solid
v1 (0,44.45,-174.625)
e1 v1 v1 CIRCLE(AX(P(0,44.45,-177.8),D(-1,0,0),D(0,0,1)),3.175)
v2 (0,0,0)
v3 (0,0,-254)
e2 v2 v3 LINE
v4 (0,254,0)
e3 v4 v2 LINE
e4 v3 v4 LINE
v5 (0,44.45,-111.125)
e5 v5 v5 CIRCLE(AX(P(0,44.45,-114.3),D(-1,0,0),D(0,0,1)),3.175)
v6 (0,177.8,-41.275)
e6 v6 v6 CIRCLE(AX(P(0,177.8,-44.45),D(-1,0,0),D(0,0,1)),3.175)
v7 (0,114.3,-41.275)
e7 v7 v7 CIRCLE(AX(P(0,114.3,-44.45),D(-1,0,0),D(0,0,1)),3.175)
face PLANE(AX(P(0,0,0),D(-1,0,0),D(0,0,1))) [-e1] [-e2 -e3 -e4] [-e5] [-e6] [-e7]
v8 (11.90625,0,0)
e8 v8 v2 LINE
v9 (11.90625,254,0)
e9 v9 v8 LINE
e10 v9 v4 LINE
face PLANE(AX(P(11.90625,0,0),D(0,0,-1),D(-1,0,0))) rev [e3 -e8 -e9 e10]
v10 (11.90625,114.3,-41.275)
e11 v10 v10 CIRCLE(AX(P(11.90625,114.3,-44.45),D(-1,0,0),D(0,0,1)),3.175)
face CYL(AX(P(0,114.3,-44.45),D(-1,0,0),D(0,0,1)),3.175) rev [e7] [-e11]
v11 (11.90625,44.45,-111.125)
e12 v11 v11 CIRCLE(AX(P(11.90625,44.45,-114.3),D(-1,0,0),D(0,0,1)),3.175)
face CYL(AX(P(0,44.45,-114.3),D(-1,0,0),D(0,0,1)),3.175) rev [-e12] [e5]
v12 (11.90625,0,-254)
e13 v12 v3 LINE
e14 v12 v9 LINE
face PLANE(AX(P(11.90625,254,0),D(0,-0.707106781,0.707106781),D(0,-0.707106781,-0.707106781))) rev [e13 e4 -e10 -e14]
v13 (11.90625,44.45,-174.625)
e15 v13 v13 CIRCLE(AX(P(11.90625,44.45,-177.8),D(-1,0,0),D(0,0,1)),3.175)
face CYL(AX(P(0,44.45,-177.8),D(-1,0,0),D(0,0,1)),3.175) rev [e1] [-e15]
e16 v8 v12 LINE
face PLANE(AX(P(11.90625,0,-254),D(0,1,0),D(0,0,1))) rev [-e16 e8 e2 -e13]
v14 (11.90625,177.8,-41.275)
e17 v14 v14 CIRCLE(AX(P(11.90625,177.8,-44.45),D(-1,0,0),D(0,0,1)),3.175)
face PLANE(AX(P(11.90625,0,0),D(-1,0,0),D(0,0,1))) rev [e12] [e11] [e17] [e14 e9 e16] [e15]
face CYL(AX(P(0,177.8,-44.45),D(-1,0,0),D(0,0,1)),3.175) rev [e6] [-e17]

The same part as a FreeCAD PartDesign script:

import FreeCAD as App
import Part
import Sketcher

V = App.Vector
Q = App.Units.Quantity

doc = App.newDocument("Part")
body = doc.addObject("PartDesign::Body", "Body")

# Sketch on YZ plane
sketch1 = body.newObject("Sketcher::SketchObject", "Sketch")
sketch1.AttachmentSupport = (doc.getObject("YZ_Plane"), [""])
sketch1.MapMode = "FlatFace"
sketch1.addGeometry(Part.LineSegment(V(254, 0, 0), V(0, 0, 0)), False)
sketch1.addGeometry(Part.LineSegment(V(0, 0, 0), V(0, -254, 0)), False)
sketch1.addGeometry(Part.LineSegment(V(0, -254, 0), V(254, 0, 0)), False)
sketch1.addConstraint(Sketcher.Constraint("Coincident", 0, 2, 1, 1))
sketch1.addConstraint(Sketcher.Constraint("Coincident", 1, 2, 2, 1))
sketch1.addConstraint(Sketcher.Constraint("Coincident", 2, 2, 0, 1))
sketch1.addConstraint(Sketcher.Constraint("Horizontal", 0))
sketch1.addConstraint(Sketcher.Constraint("Vertical", 1))
sketch1.addConstraint(Sketcher.Constraint("Coincident", 0, 2, -1, 1))
sketch1.addConstraint(Sketcher.Constraint("Equal", 0, 1))
sketch1.addConstraint(Sketcher.Constraint("DistanceX", 0, 2, 0, 1, Q("10 in")))
pad1 = body.newObject("PartDesign::Pad", "Pad")
pad1.Profile = sketch1
pad1.Length = Q("0.46875 in")

# Sketch on YZ plane
sketch2 = body.newObject("Sketcher::SketchObject", "Sketch001")
sketch2.AttachmentSupport = (doc.getObject("YZ_Plane"), [""])
sketch2.MapMode = "FlatFace"
sketch2.addGeometry(Part.Circle(V(44.5, -114.3, 0), V(0, 0, 1), 3.2), False)
sketch2.addGeometry(Part.Circle(V(114.3, -44.5, 0), V(0, 0, 1), 3.2), False)
sketch2.addGeometry(Part.Circle(V(177.8, -44.5, 0), V(0, 0, 1), 3.2), False)
sketch2.addGeometry(Part.Circle(V(44.5, -177.8, 0), V(0, 0, 1), 3.2), False)
sketch2.addConstraint(Sketcher.Constraint("Equal", 0, 1))
sketch2.addConstraint(Sketcher.Constraint("Equal", 1, 2))
sketch2.addConstraint(Sketcher.Constraint("Equal", 2, 3))
sketch2.addConstraint(Sketcher.Constraint("Horizontal", 1, 3, 2, 3))
sketch2.addConstraint(Sketcher.Constraint("Vertical", 0, 3, 3, 3))
sketch2.addConstraint(Sketcher.Constraint("Diameter", 0, Q("0.25 in")))
sketch2.addConstraint(Sketcher.Constraint("DistanceX", -1, 1, 2, 3, Q("7 in")))
sketch2.addConstraint(Sketcher.Constraint("DistanceY", 3, 3, -1, 1, Q("7 in")))
sketch2.addConstraint(Sketcher.Constraint("DistanceY", 0, 3, -1, 1, Q("4.5 in")))
sketch2.addConstraint(Sketcher.Constraint("DistanceX", -1, 1, 1, 3, Q("4.5 in")))
sketch2.addConstraint(Sketcher.Constraint("DistanceX", -1, 1, 0, 3, Q("1.75 in")))
sketch2.addConstraint(Sketcher.Constraint("DistanceY", 1, 3, -1, 1, Q("1.75 in")))
doc.recompute()
hole = body.newObject("PartDesign::Hole", "Hole")
hole.Profile = sketch2
hole.ThreadType = "None"
hole.Diameter = Q("0.25 in")
hole.DepthType = "ThroughAll"
hole.Reversed = True

doc.recompute()
